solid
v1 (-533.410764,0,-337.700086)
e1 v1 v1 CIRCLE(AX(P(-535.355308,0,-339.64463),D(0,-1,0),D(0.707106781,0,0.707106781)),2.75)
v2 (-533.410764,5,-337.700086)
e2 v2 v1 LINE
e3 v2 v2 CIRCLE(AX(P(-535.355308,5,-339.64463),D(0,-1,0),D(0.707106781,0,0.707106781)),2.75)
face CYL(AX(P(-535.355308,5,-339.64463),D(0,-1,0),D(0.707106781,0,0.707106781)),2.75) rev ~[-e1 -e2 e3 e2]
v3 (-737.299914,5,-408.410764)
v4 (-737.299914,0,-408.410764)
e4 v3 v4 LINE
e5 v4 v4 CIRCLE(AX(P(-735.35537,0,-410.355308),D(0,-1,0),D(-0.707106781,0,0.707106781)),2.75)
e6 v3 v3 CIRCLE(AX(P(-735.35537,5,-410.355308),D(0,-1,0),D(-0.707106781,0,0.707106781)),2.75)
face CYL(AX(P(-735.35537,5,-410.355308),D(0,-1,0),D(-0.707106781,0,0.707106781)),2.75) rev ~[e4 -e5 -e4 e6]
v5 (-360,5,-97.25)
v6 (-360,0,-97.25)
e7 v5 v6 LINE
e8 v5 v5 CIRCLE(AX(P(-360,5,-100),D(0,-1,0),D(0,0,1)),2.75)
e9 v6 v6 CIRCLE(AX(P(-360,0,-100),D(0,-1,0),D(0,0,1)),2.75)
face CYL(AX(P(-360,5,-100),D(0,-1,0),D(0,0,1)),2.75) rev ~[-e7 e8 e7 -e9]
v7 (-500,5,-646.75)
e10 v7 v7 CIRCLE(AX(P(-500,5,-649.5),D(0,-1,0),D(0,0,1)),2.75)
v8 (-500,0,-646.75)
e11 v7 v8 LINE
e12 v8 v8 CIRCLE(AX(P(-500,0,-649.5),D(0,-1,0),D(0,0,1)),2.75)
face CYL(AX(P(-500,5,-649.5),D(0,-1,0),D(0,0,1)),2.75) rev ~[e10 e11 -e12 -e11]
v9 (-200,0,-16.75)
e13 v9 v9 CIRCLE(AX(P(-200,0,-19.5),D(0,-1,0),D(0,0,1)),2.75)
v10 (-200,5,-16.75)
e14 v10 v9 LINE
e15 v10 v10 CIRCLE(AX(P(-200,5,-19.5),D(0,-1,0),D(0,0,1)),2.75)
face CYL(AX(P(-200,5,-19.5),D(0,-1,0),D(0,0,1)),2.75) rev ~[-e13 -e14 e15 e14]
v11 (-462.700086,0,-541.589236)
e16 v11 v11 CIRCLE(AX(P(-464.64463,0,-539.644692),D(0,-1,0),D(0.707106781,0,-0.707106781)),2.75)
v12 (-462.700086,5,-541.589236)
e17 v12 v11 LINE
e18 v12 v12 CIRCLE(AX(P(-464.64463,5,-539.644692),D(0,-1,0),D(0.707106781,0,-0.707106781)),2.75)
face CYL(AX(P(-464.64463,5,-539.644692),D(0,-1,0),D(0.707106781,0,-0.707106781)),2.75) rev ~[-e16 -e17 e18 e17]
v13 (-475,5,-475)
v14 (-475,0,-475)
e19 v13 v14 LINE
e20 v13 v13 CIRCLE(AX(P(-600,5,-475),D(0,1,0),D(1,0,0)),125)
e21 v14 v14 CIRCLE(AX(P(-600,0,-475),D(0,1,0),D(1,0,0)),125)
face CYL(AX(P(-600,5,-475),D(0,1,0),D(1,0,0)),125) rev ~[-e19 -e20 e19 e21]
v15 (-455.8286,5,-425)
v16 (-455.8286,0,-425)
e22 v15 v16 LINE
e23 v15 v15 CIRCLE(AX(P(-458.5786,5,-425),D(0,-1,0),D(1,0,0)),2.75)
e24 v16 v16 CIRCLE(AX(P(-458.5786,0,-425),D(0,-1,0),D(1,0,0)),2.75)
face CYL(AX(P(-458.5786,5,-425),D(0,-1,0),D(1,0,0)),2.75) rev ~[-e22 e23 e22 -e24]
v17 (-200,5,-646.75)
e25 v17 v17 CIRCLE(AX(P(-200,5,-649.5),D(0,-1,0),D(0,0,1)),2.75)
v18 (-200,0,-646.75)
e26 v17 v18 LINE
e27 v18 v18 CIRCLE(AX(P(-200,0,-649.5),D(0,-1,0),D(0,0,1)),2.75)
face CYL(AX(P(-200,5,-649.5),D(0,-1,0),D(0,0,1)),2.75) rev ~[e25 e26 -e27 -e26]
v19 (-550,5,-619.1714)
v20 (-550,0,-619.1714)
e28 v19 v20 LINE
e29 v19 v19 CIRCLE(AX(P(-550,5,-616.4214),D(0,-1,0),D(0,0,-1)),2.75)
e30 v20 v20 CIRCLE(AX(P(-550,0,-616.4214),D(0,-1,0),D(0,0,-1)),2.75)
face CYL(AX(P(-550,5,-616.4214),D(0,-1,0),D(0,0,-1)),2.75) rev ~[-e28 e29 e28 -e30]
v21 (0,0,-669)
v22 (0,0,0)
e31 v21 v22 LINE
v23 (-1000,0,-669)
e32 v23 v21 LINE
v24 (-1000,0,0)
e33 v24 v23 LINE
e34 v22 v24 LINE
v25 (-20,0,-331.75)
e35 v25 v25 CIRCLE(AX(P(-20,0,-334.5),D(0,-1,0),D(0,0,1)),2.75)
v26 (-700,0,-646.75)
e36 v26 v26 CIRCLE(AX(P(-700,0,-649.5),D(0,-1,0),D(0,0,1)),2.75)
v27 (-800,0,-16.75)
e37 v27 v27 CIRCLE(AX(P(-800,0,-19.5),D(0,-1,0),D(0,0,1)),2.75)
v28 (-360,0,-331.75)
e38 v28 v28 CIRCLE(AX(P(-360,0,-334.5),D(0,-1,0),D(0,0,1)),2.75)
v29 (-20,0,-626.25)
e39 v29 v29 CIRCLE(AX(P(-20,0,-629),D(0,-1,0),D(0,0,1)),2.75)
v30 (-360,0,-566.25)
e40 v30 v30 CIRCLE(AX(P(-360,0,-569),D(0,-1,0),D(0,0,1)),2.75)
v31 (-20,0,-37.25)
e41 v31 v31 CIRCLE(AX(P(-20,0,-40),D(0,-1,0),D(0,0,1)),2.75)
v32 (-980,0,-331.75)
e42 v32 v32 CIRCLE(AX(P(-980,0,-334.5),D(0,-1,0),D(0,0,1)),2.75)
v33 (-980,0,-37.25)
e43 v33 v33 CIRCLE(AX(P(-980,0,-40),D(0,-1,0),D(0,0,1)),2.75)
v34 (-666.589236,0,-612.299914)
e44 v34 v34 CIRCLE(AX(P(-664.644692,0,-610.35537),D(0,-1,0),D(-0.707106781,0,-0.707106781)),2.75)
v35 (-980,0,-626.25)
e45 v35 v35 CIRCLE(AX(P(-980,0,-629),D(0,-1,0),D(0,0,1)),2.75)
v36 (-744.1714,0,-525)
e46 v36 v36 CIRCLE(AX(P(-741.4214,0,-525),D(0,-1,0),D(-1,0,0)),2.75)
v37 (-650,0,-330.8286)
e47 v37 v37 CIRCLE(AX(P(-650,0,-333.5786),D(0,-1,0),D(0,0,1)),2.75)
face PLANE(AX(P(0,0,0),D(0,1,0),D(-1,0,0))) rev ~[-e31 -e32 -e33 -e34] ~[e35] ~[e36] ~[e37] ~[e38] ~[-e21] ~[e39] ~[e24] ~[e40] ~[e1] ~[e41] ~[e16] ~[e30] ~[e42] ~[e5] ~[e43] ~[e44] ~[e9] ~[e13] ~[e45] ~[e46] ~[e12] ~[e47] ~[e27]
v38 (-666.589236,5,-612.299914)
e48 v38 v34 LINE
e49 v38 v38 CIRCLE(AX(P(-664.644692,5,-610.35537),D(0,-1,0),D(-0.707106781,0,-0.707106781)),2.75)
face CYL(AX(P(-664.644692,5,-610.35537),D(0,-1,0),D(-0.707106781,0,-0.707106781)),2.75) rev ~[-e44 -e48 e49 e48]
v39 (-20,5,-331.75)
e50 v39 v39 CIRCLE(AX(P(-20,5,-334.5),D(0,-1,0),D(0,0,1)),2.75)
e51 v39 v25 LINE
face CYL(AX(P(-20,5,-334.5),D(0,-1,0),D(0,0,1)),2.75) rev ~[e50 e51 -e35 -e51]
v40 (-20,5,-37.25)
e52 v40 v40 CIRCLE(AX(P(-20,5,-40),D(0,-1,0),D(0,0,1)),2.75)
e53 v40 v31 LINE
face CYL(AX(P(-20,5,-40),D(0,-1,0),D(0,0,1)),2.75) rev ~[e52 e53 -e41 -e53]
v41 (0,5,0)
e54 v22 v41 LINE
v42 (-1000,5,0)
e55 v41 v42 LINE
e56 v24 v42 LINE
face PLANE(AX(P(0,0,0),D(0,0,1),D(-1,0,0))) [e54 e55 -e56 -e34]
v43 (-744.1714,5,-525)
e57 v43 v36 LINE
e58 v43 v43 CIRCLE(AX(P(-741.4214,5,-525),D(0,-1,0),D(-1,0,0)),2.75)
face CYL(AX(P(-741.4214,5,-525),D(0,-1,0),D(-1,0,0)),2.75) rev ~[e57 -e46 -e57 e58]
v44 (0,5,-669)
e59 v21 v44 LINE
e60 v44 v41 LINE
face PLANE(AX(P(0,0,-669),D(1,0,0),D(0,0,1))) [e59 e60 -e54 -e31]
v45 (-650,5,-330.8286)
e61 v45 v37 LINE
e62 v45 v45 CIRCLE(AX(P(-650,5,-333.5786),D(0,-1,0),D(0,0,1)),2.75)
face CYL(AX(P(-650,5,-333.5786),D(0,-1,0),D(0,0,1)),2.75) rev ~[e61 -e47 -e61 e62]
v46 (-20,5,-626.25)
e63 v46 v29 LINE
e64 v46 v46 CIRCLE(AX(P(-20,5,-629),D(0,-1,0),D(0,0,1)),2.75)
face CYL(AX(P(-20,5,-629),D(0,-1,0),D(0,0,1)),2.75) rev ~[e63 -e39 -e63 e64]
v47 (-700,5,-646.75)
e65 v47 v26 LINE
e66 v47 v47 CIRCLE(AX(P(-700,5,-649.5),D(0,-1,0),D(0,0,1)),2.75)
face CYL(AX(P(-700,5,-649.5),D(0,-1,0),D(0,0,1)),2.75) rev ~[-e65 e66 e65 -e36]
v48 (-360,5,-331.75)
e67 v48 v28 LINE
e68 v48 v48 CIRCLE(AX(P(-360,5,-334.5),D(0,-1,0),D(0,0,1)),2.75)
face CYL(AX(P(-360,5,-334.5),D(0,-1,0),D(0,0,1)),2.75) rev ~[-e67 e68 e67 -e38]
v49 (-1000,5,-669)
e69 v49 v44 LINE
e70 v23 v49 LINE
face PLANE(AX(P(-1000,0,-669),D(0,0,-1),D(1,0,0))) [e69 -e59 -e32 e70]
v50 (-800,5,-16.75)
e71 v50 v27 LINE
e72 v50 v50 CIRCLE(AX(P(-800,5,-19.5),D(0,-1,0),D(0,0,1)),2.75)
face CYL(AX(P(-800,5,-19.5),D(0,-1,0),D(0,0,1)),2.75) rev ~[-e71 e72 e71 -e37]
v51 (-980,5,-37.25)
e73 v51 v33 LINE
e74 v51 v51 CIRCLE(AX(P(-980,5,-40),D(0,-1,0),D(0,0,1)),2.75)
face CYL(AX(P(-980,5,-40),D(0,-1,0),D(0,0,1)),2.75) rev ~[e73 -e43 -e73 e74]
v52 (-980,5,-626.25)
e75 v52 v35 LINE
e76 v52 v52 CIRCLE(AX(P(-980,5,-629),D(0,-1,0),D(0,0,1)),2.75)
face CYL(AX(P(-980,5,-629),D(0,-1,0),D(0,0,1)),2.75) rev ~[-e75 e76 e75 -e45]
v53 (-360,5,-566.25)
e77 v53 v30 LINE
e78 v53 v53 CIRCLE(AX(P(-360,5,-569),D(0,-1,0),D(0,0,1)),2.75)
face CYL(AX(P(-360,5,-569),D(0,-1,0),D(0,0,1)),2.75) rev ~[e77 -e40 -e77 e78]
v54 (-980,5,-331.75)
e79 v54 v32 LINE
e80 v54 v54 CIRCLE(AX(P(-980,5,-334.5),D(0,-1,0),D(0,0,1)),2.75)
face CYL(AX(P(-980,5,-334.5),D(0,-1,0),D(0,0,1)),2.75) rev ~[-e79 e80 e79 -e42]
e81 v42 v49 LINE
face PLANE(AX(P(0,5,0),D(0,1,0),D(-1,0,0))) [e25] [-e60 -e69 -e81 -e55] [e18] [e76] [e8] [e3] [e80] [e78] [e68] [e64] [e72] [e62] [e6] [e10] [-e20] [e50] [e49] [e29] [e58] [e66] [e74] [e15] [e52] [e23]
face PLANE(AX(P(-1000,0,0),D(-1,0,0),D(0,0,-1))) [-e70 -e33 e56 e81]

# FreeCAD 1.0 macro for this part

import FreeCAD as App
import Part
import Sketcher

V = App.Vector


def add_polygon(sketch, points):
    """Adds a closed chain of lines whose ends are joined by coincident constraints."""
    first, n = sketch.GeometryCount, len(points)
    for a, b in zip(points, points[1:] + points[:1]):
        sketch.addGeometry(Part.LineSegment(App.Vector(*a, 0), App.Vector(*b, 0)), False)
    for i in range(n):
        sketch.addConstraint(Sketcher.Constraint("Coincident", first + i, 2, first + (i + 1) % n, 1))

doc = App.newDocument("Part")
body = doc.addObject("PartDesign::Body", "Body")

sketch1 = doc.addObject("Sketcher::SketchObject", "Sketch")
body.addObject(sketch1)
sketch1.AttachmentSupport = (doc.XZ_Plane, [""])
sketch1.MapMode = "FlatFace"
add_polygon(sketch1, [(-1000, 0), (0, 0), (0, -669), (-1000, -669)])
sketch1.addConstraint([
    Sketcher.Constraint("Horizontal", 0),
    Sketcher.Constraint("Vertical", 1),
    Sketcher.Constraint("Horizontal", 2),
    Sketcher.Constraint("Vertical", 3),
    Sketcher.Constraint("Coincident", 0, 2, -1, 1),
    Sketcher.Constraint("DistanceX", 0, 1, 0, 2, 1000.0),
    Sketcher.Constraint("DistanceY", 1, 2, 1, 1, 669.0),
])
pad1 = doc.addObject("PartDesign::Pad", "Pad")
body.addObject(pad1)
pad1.Profile = sketch1
pad1.Length = 5
pad1.Reversed = True

sketch2 = doc.addObject("Sketcher::SketchObject", "Sketch001")
body.addObject(sketch2)
sketch2.AttachmentSupport = (doc.XZ_Plane, [""])
sketch2.MapMode = "FlatFace"
sketch2.AttachmentOffset = App.Placement(V(0, 0, -5), App.Rotation())
sketch2.addGeometry(Part.Circle(V(-600, -475, 0), V(0, 0, 1), 125), False)
sketch2.addConstraint([
    Sketcher.Constraint("Diameter", 0, 250.0),
    Sketcher.Constraint("DistanceX", 0, 3, -1, 1, 600.0),
    Sketcher.Constraint("DistanceY", 0, 3, -1, 1, 475.0),
])
pocket1 = doc.addObject("PartDesign::Pocket", "Pocket")
body.addObject(pocket1)
pocket1.Profile = sketch2
pocket1.Type = "ThroughAll"
pocket1.Reversed = True

sketch3 = doc.addObject("Sketcher::SketchObject", "Sketch002")
body.addObject(sketch3)
sketch3.AttachmentSupport = (doc.XZ_Plane, [""])
sketch3.MapMode = "FlatFace"
sketch3.AttachmentOffset = App.Placement(V(0, 0, -5), App.Rotation())
sketch3.addGeometry([
    Part.Circle(V(-20, -40, 0), V(0, 0, 1), 2.8),
    Part.Circle(V(-20, -334.5, 0), V(0, 0, 1), 2.8),
    Part.Circle(V(-20, -629, 0), V(0, 0, 1), 2.8),
    Part.Circle(V(-980, -40, 0), V(0, 0, 1), 2.8),
    Part.Circle(V(-980, -334.5, 0), V(0, 0, 1), 2.8),
    Part.Circle(V(-980, -629, 0), V(0, 0, 1), 2.8),
], False)
sketch3.addConstraint([
    Sketcher.Constraint("Equal", 0, 1),
    Sketcher.Constraint("Equal", 1, 2),
    Sketcher.Constraint("Equal", 2, 3),
    Sketcher.Constraint("Equal", 3, 4),
    Sketcher.Constraint("Equal", 4, 5),
    Sketcher.Constraint("Horizontal", 0, 3, 3, 3),
    Sketcher.Constraint("Horizontal", 1, 3, 4, 3),
    Sketcher.Constraint("Horizontal", 2, 3, 5, 3),
    Sketcher.Constraint("Vertical", 0, 3, 1, 3),
    Sketcher.Constraint("Vertical", 1, 3, 2, 3),
    Sketcher.Constraint("Vertical", 3, 3, 4, 3),
    Sketcher.Constraint("Vertical", 4, 3, 5, 3),
    Sketcher.Constraint("Diameter", 0, 5.5),
    Sketcher.Constraint("DistanceX", 0, 3, -1, 1, 20.0),
    Sketcher.Constraint("DistanceY", 0, 3, -1, 1, 40.0),
    Sketcher.Constraint("DistanceY", 2, 3, -1, 1, 629.0),
    Sketcher.Constraint("DistanceX", 3, 3, -1, 1, 980.0),
    Sketcher.Constraint("DistanceY", 1, 3, -1, 1, 334.5),
])
doc.recompute()
hole = doc.addObject("PartDesign::Hole", "Hole")
body.addObject(hole)
hole.Profile = sketch3
hole.ThreadType = "None"
hole.Diameter = 5.5
hole.DepthType = "ThroughAll"
hole.Reversed = True

sketch4 = doc.addObject("Sketcher::SketchObject", "Sketch003")
body.addObject(sketch4)
sketch4.AttachmentSupport = (doc.XZ_Plane, [""])
sketch4.MapMode = "FlatFace"
sketch4.AttachmentOffset = App.Placement(V(0, 0, -5), App.Rotation())
sketch4.addGeometry(Part.Circle(V(-650, -333.6, 0), V(0, 0, 1), 2.8), False)
sketch4.addConstraint([
    Sketcher.Constraint("Diameter", 0, 5.5),
    Sketcher.Constraint("DistanceX", 0, 3, -1, 1, 650.0),
    Sketcher.Constraint("DistanceY", 0, 3, -1, 1, 333.5786),
])
doc.recompute()
hole2 = doc.addObject("PartDesign::Hole", "Hole001")
body.addObject(hole2)
hole2.Profile = sketch4
hole2.ThreadType = "None"
hole2.Diameter = 5.5
hole2.DepthType = "ThroughAll"
hole2.Reversed = True
doc.recompute()

datumline = doc.addObject("PartDesign::Line", "DatumLine")
body.addObject(datumline)
datumline.Placement = App.Placement(V(-600, 0, -475), App.Rotation(V(0, 0, 1), V(0, 1, 0)))
polarpattern = doc.addObject("PartDesign::PolarPattern", "PolarPattern")
body.addObject(polarpattern)
polarpattern.Originals = [hole2]
polarpattern.Axis = (datumline, [""])
polarpattern.Angle = 360
polarpattern.Occurrences = 8
body.Tip = polarpattern

sketch5 = doc.addObject("Sketcher::SketchObject", "Sketch004")
body.addObject(sketch5)
sketch5.AttachmentSupport = (doc.XZ_Plane, [""])
sketch5.MapMode = "FlatFace"
sketch5.AttachmentOffset = App.Placement(V(0, 0, -5), App.Rotation())
sketch5.addGeometry([
    Part.Circle(V(-700, -649.5, 0), V(0, 0, 1), 2.8),
    Part.Circle(V(-800, -19.5, 0), V(0, 0, 1), 2.8),
], False)
sketch5.addConstraint([
    Sketcher.Constraint("Equal", 0, 1),
    Sketcher.Constraint("Diameter", 0, 5.5),
    Sketcher.Constraint("DistanceX", 0, 3, -1, 1, 700.0),
    Sketcher.Constraint("DistanceX", 1, 3, -1, 1, 800.0),
    Sketcher.Constraint("DistanceY", 0, 3, 1, 3, 630.0),
    Sketcher.Constraint("DistanceY", 0, 3, -1, 1, 649.5),
])
doc.recompute()
hole3 = doc.addObject("PartDesign::Hole", "Hole002")
body.addObject(hole3)
hole3.Profile = sketch5
hole3.ThreadType = "None"
hole3.Diameter = 5.5
hole3.DepthType = "ThroughAll"
hole3.Reversed = True

sketch6 = doc.addObject("Sketcher::SketchObject", "Sketch005")
body.addObject(sketch6)
sketch6.AttachmentSupport = (doc.XZ_Plane, [""])
sketch6.MapMode = "FlatFace"
sketch6.AttachmentOffset = App.Placement(V(0, 0, -5), App.Rotation())
sketch6.addGeometry([
    Part.Circle(V(-200, -19.5, 0), V(0, 0, 1), 2.8),
    Part.Circle(V(-200, -649.5, 0), V(0, 0, 1), 2.8),
], False)
sketch6.addConstraint([
    Sketcher.Constraint("Equal", 0, 1),
    Sketcher.Constraint("Vertical", 0, 3, 1, 3),
    Sketcher.Constraint("Diameter", 0, 5.5),
    Sketcher.Constraint("DistanceX", 0, 3, -1, 1, 200.0),
    Sketcher.Constraint("DistanceY", 1, 3, 0, 3, 630.0),
    Sketcher.Constraint("DistanceY", 0, 3, -1, 1, 19.5),
])
doc.recompute()
hole4 = doc.addObject("PartDesign::Hole", "Hole003")
body.addObject(hole4)
hole4.Profile = sketch6
hole4.ThreadType = "None"
hole4.Diameter = 5.5
hole4.DepthType = "ThroughAll"
hole4.Reversed = True

sketch7 = doc.addObject("Sketcher::SketchObject", "Sketch006")
body.addObject(sketch7)
sketch7.AttachmentSupport = (doc.XZ_Plane, [""])
sketch7.MapMode = "FlatFace"
sketch7.AttachmentOffset = App.Placement(V(0, 0, -5), App.Rotation())
sketch7.addGeometry(Part.Circle(V(-500, -649.5, 0), V(0, 0, 1), 2.8), False)
sketch7.addConstraint([
    Sketcher.Constraint("Diameter", 0, 5.5),
    Sketcher.Constraint("DistanceX", 0, 3, -1, 1, 500.0),
    Sketcher.Constraint("DistanceY", 0, 3, -1, 1, 649.5),
])
doc.recompute()
hole5 = doc.addObject("PartDesign::Hole", "Hole004")
body.addObject(hole5)
hole5.Profile = sketch7
hole5.ThreadType = "None"
hole5.Diameter = 5.5
hole5.DepthType = "ThroughAll"
hole5.Reversed = True

sketch8 = doc.addObject("Sketcher::SketchObject", "Sketch007")
body.addObject(sketch8)
sketch8.AttachmentSupport = (doc.XZ_Plane, [""])
sketch8.MapMode = "FlatFace"
sketch8.AttachmentOffset = App.Placement(V(0, 0, -5), App.Rotation())
sketch8.addGeometry([
    Part.Circle(V(-360, -100, 0), V(0, 0, 1), 2.8),
    Part.Circle(V(-360, -334.5, 0), V(0, 0, 1), 2.8),
    Part.Circle(V(-360, -569, 0), V(0, 0, 1), 2.8),
], False)
sketch8.addConstraint([
    Sketcher.Constraint("Equal", 0, 1),
    Sketcher.Constraint("Equal", 1, 2),
    Sketcher.Constraint("Vertical", 0, 3, 1, 3),
    Sketcher.Constraint("Vertical", 1, 3, 2, 3),
    Sketcher.Constraint("Diameter", 0, 5.5),
    Sketcher.Constraint("DistanceX", 0, 3, -1, 1, 360.0),
    Sketcher.Constraint("DistanceY", 0, 3, -1, 1, 100.0),
    Sketcher.Constraint("DistanceY", 2, 3, -1, 1, 569.0),
    Sketcher.Constraint("DistanceY", 1, 3, -1, 1, 334.5),
])
doc.recompute()
hole6 = doc.addObject("PartDesign::Hole", "Hole005")
body.addObject(hole6)
hole6.Profile = sketch8
hole6.ThreadType = "None"
hole6.Diameter = 5.5
hole6.DepthType = "ThroughAll"
hole6.Reversed = True

doc.recompute()
